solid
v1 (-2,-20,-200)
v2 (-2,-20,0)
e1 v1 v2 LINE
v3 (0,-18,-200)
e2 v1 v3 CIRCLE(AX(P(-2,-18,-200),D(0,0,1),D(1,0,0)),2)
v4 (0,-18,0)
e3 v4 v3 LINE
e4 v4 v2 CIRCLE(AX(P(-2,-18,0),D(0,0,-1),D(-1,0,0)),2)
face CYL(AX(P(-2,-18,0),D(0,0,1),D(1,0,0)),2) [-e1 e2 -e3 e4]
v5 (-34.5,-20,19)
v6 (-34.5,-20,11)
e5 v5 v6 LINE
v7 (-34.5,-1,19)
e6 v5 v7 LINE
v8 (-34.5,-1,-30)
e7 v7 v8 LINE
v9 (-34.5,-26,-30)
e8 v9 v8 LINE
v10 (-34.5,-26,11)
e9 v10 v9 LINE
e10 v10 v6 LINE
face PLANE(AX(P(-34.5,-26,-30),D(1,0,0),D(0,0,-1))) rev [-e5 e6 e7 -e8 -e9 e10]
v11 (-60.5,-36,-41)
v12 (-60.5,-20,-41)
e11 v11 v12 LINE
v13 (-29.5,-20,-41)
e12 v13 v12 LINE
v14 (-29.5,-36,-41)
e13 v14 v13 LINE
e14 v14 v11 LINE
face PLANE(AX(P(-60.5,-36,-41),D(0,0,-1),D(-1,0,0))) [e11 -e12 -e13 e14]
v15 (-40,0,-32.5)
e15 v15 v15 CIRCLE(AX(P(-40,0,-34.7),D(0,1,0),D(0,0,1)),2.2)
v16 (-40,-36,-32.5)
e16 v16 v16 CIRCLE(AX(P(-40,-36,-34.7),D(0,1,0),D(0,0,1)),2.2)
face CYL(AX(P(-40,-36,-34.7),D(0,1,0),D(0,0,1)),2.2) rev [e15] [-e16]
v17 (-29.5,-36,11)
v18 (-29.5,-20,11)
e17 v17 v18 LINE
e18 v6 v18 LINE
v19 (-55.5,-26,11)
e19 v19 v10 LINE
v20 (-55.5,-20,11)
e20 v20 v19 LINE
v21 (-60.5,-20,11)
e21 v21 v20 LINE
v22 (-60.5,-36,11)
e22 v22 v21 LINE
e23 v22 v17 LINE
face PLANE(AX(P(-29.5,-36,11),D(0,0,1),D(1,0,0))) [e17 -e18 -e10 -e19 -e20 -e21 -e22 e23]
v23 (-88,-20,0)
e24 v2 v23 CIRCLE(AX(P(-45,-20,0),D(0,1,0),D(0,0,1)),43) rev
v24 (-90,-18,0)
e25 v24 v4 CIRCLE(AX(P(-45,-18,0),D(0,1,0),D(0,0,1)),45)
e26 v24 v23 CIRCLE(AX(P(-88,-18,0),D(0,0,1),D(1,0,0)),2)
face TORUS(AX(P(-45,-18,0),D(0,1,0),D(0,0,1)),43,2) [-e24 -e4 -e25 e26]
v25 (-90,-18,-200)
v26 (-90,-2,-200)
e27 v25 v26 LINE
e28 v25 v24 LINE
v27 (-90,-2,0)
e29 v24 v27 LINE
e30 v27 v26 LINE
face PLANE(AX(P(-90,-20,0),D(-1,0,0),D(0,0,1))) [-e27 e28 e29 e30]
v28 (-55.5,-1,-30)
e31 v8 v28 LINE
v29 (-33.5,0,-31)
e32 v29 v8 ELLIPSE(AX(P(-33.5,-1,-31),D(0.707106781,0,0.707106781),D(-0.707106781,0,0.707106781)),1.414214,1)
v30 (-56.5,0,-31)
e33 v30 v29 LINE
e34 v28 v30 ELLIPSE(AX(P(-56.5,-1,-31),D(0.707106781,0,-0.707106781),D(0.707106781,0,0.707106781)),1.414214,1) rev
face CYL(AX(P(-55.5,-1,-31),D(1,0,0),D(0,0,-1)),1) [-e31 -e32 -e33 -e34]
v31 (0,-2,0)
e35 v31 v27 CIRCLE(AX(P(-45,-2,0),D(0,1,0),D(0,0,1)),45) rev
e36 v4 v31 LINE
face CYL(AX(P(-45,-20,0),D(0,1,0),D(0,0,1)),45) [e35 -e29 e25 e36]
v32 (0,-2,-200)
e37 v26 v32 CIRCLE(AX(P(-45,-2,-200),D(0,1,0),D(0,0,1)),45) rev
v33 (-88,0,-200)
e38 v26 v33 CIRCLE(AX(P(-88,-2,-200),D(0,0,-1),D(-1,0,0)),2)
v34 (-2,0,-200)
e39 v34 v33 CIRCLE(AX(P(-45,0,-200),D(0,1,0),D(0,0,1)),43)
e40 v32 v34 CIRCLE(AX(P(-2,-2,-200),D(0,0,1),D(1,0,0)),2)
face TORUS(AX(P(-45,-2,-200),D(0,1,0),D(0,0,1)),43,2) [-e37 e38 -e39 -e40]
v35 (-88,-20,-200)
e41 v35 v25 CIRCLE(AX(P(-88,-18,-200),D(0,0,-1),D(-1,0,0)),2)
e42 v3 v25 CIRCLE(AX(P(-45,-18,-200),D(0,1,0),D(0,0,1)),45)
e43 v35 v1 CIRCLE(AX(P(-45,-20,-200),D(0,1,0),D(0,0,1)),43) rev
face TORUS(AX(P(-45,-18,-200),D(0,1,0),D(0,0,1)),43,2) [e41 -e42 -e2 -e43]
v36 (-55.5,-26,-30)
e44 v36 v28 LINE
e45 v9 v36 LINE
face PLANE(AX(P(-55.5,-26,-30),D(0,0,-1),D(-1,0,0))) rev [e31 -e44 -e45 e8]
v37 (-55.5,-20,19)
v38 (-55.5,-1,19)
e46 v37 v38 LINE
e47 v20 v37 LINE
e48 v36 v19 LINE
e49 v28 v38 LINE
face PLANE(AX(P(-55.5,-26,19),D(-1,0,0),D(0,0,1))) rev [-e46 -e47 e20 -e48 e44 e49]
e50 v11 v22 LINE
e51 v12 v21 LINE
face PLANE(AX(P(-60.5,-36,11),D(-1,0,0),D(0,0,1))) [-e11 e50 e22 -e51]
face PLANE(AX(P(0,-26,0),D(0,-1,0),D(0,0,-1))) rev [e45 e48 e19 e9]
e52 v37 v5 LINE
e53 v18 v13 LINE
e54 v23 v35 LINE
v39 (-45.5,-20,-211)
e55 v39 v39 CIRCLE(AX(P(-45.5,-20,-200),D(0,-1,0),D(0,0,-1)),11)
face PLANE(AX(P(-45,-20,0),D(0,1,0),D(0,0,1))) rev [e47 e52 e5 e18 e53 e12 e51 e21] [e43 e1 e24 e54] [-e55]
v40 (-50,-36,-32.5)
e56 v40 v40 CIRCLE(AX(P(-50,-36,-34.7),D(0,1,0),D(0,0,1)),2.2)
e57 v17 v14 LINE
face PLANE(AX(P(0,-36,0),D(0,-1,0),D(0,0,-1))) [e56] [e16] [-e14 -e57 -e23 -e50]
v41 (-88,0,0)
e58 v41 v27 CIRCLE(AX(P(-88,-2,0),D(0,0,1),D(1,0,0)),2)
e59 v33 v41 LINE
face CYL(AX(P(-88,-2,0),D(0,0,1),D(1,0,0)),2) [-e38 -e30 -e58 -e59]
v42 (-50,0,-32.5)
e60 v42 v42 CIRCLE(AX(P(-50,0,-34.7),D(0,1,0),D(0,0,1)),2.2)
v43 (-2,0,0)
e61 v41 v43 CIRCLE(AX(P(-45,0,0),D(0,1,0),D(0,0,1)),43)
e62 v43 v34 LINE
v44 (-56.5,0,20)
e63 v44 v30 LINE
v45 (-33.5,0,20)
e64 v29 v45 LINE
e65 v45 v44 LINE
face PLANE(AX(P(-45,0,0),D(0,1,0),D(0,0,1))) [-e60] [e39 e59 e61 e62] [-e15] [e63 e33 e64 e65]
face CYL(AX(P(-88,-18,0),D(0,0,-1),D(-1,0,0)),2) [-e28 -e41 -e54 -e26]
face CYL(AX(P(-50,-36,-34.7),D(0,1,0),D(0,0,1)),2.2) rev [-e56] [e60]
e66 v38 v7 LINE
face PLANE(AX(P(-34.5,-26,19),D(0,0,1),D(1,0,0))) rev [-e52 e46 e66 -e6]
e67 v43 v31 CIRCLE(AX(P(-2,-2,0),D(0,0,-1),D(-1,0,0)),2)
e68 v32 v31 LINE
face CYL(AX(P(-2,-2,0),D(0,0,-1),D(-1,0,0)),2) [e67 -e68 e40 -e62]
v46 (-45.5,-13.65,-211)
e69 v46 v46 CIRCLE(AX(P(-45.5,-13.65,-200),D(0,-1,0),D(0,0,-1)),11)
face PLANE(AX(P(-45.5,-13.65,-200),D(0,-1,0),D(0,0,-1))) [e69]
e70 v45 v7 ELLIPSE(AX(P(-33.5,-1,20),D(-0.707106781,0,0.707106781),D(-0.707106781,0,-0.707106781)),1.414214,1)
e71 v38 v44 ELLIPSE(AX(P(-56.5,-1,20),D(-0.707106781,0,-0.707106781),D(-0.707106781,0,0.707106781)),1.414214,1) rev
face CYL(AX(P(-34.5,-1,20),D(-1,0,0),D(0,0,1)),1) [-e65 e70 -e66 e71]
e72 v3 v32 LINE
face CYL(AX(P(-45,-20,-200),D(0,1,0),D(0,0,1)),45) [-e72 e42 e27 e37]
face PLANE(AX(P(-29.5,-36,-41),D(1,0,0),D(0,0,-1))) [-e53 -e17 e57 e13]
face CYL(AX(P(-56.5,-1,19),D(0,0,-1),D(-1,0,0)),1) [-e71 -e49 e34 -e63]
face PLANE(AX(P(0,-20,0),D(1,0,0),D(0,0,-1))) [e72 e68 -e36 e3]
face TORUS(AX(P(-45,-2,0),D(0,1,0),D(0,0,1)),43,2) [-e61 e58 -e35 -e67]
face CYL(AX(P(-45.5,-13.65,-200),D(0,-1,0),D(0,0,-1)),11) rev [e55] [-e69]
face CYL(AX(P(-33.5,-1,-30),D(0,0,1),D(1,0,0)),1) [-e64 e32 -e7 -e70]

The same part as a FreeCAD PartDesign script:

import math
import FreeCAD as App
import Part
import Sketcher


def edges_at(feature, points):
    """Names of the edges that pass closest to the given points."""
    edges = feature.Shape.Edges
    near = lambda p: min(range(len(edges)), key=lambda i: edges[i].distToShape(Part.Vertex(*p))[0])
    return sorted({f"Edge{near(p) + 1}" for p in points})


def add_polygon(sketch, points):
    """Adds a closed chain of lines whose ends are joined by coincident constraints."""
    first, n = sketch.GeometryCount, len(points)
    for a, b in zip(points, points[1:] + points[:1]):
        sketch.addGeometry(Part.LineSegment(App.Vector(*a, 0), App.Vector(*b, 0)), False)
    for i in range(n):
        sketch.addConstraint(Sketcher.Constraint("Coincident", first + i, 2, first + (i + 1) % n, 1))

doc = App.newDocument("Part")
params = doc.addObject("Spreadsheet::Sheet", "Params")
for row, (alias, value) in enumerate([
    ("sketch1_radius", "45 mm"),
    ("sketch1_diameter", "4.4 mm"),
    ("sketch1_height", "200 mm"),
    ("pad1_length", "20 mm"),
    ("fillet_radius", "2 mm"),
    ("sketch2_diameter", "22 mm"),
    ("pocket1_length", "6.35 mm"),
    ("sketch3_width", "31 mm"),
    ("sketch3_height", "52 mm"),
    ("pad2_length", "36 mm"),
    ("sketch4_width", "21 mm"),
    ("sketch4_height", "49 mm"),
    ("pocket2_length", "26 mm"),
    ("fillet2_radius", "1 mm"),
    ("sketch5_diameter", "4.4 mm"),
], start=1):
    params.set(f"A{row}", alias)
    params.set(f"B{row}", "=" + value)
    params.setAlias(f"B{row}", alias)

body = doc.addObject("PartDesign::Body", "Body")

sketch1 = body.newObject("Sketcher::SketchObject", "Sketch")
sketch1.AttachmentSupport = (doc.getObject("XZ_Plane"), [""])
sketch1.MapMode = "FlatFace"
sketch1.addGeometry(Part.LineSegment(App.Vector(0, 0, 0), App.Vector(0, -200, 0)), False)
sketch1.addGeometry(Part.ArcOfCircle(Part.Circle(App.Vector(-45, -200, 0), App.Vector(0, 0, 1), 45), math.radians(180), math.radians(360)), False)
sketch1.addGeometry(Part.LineSegment(App.Vector(-90, -200, 0), App.Vector(-90, 0, 0)), False)
sketch1.addGeometry(Part.ArcOfCircle(Part.Circle(App.Vector(-45, 0, 0), App.Vector(0, 0, 1), 45), math.radians(0), math.radians(180)), False)
sketch1.addGeometry(Part.Circle(App.Vector(-50, -34.6, 0), App.Vector(0, 0, 1), 2.2), False)
sketch1.addGeometry(Part.Circle(App.Vector(-40, -34.6, 0), App.Vector(0, 0, 1), 2.2), False)
sketch1.addConstraint(Sketcher.Constraint("Tangent", 0, 2, 1, 2))
sketch1.addConstraint(Sketcher.Constraint("Tangent", 1, 1, 2, 1))
sketch1.addConstraint(Sketcher.Constraint("Tangent", 2, 2, 3, 2))
sketch1.addConstraint(Sketcher.Constraint("Tangent", 3, 1, 0, 1))
sketch1.addConstraint(Sketcher.Constraint("Vertical", 0))
sketch1.addConstraint(Sketcher.Constraint("Vertical", 2))
sketch1.addConstraint(Sketcher.Constraint("Coincident", 3, 1, -1, 1))
sketch1.addConstraint(Sketcher.Constraint("Equal", 4, 5))
sketch1.addConstraint(Sketcher.Constraint("Horizontal", 4, 3, 5, 3))
sketch1.addConstraint(Sketcher.Constraint("Radius", 1, 45.0))
sketch1.addConstraint(Sketcher.Constraint("Diameter", 4, 4.4))
sketch1.addConstraint(Sketcher.Constraint("DistanceY", 0, 2, 0, 1, 200.0))
sketch1.addConstraint(Sketcher.Constraint("DistanceX", 4, 3, -1, 1, 50.0))
sketch1.addConstraint(Sketcher.Constraint("DistanceX", 5, 3, -1, 1, 40.0))
sketch1.addConstraint(Sketcher.Constraint("DistanceY", 4, 3, -1, 1, 34.589613))
sketch1.setExpression("Constraints[9]", "Params.sketch1_radius")
sketch1.setExpression("Constraints[10]", "Params.sketch1_diameter")
sketch1.setExpression("Constraints[11]", "Params.sketch1_height")
pad1 = body.newObject("PartDesign::Pad", "Pad")
pad1.Profile = sketch1
pad1.setExpression("Length", "Params.pad1_length")
doc.recompute()

fillet = body.newObject("PartDesign::Fillet", "Fillet")
fillet.Base = (pad1, edges_at(pad1, [
    (-45, -20, -245),
    (-90, -20, -100),
    (-45, -20, 45),
    (-90, 0, -100),
    (-45, 0, -245),
    (0, 0, -100),
    (-45, 0, 45),
    (0, -20, -100),
]))
fillet.setExpression("Radius", "Params.fillet_radius")

sketch2 = body.newObject("Sketcher::SketchObject", "Sketch001")
sketch2.AttachmentSupport = (doc.getObject("XZ_Plane"), [""])
sketch2.MapMode = "FlatFace"
sketch2.AttachmentOffset = App.Placement(App.Vector(0, 0, 20), App.Rotation())
sketch2.addGeometry(Part.Circle(App.Vector(-46, -200, 0), App.Vector(0, 0, 1), 11), False)
sketch2.addConstraint(Sketcher.Constraint("Diameter", 0, 22.0))
sketch2.addConstraint(Sketcher.Constraint("DistanceY", 0, 3, -1, 1, 200.0))
sketch2.addConstraint(Sketcher.Constraint("DistanceX", 0, 3, -1, 1, 45.5))
sketch2.setExpression("Constraints[0]", "Params.sketch2_diameter")
pocket1 = body.newObject("PartDesign::Pocket", "Pocket")
pocket1.Profile = sketch2
pocket1.setExpression("Length", "Params.pocket1_length")

sketch3 = body.newObject("Sketcher::SketchObject", "Sketch002")
sketch3.AttachmentSupport = (doc.getObject("XZ_Plane"), [""])
sketch3.MapMode = "FlatFace"
add_polygon(sketch3, [(-60, -41), (-60, 11), (-30, 11), (-30, -41)])
sketch3.addConstraint(Sketcher.Constraint("Vertical", 0))
sketch3.addConstraint(Sketcher.Constraint("Horizontal", 1))
sketch3.addConstraint(Sketcher.Constraint("Vertical", 2))
sketch3.addConstraint(Sketcher.Constraint("Horizontal", 3))
sketch3.addConstraint(Sketcher.Constraint("DistanceX", 1, 1, 1, 2, 31.0))
sketch3.addConstraint(Sketcher.Constraint("DistanceY", 0, 1, 0, 2, 52.0))
sketch3.addConstraint(Sketcher.Constraint("DistanceY", -1, 1, 0, 2, 11.0))
sketch3.addConstraint(Sketcher.Constraint("DistanceX", 0, 2, -1, 1, 60.5))
sketch3.setExpression("Constraints[8]", "Params.sketch3_width")
sketch3.setExpression("Constraints[9]", "Params.sketch3_height")
pad2 = body.newObject("PartDesign::Pad", "Pad001")
pad2.Profile = sketch3
pad2.setExpression("Length", "Params.pad2_length")

sketch4 = body.newObject("Sketcher::SketchObject", "Sketch003")
sketch4.AttachmentSupport = (doc.getObject("XZ_Plane"), [""])
sketch4.MapMode = "FlatFace"
add_polygon(sketch4, [(-56, -30), (-56, 19), (-34, 19), (-34, -30)])
sketch4.addConstraint(Sketcher.Constraint("Vertical", 0))
sketch4.addConstraint(Sketcher.Constraint("Horizontal", 1))
sketch4.addConstraint(Sketcher.Constraint("Vertical", 2))
sketch4.addConstraint(Sketcher.Constraint("Horizontal", 3))
sketch4.addConstraint(Sketcher.Constraint("DistanceX", 1, 1, 1, 2, 21.0))
sketch4.addConstraint(Sketcher.Constraint("DistanceY", 0, 1, 0, 2, 49.0))
sketch4.addConstraint(Sketcher.Constraint("DistanceY", -1, 1, 0, 2, 19.0))
sketch4.addConstraint(Sketcher.Constraint("DistanceX", 0, 2, -1, 1, 55.5))
sketch4.setExpression("Constraints[8]", "Params.sketch4_width")
sketch4.setExpression("Constraints[9]", "Params.sketch4_height")
pocket2 = body.newObject("PartDesign::Pocket", "Pocket001")
pocket2.Profile = sketch4
pocket2.setExpression("Length", "Params.pocket2_length")
pocket2.Reversed = True
doc.recompute()

fillet2 = body.newObject("PartDesign::Fillet", "Fillet001")
fillet2.Base = (pocket2, edges_at(pocket2, [
    (-45, 0, 19),
    (-34.5, 0, -5.5),
    (-45, 0, -30),
    (-55.5, 0, -5.5),
]))
fillet2.setExpression("Radius", "Params.fillet2_radius")

sketch5 = body.newObject("Sketcher::SketchObject", "Sketch004")
sketch5.AttachmentSupport = (doc.getObject("XZ_Plane"), [""])
sketch5.MapMode = "FlatFace"
sketch5.addGeometry(Part.Circle(App.Vector(-50, -34.7, 0), App.Vector(0, 0, 1), 2.2), False)
sketch5.addGeometry(Part.Circle(App.Vector(-40, -34.7, 0), App.Vector(0, 0, 1), 2.2), False)
sketch5.addConstraint(Sketcher.Constraint("Equal", 0, 1))
sketch5.addConstraint(Sketcher.Constraint("Horizontal", 0, 3, 1, 3))
sketch5.addConstraint(Sketcher.Constraint("Diameter", 0, 4.4))
sketch5.addConstraint(Sketcher.Constraint("DistanceX", 0, 3, -1, 1, 50.0))
sketch5.addConstraint(Sketcher.Constraint("DistanceX", 1, 3, -1, 1, 40.0))
sketch5.addConstraint(Sketcher.Constraint("DistanceY", 0, 3, -1, 1, 34.7))
sketch5.setExpression("Constraints[2]", "Params.sketch5_diameter")
pocket3 = body.newObject("PartDesign::Pocket", "Pocket002")
pocket3.Profile = sketch5
pocket3.Type = "ThroughAll"
pocket3.Reversed = True

doc.recompute()
